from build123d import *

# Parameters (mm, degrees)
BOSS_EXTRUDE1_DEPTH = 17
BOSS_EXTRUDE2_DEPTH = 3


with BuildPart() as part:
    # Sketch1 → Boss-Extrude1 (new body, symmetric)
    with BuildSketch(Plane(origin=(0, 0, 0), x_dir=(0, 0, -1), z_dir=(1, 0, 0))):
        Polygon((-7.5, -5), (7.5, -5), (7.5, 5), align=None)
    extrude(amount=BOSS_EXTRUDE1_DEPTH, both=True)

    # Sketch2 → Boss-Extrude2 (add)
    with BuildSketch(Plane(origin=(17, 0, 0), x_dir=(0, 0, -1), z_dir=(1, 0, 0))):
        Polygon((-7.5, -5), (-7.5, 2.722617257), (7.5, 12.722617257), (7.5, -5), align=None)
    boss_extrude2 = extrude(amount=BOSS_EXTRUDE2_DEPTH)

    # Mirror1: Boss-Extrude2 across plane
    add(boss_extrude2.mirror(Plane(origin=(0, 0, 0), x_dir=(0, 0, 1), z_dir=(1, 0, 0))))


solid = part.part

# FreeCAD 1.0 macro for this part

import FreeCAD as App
import Part
import Sketcher
from FreeCAD import Vector
Q = App.Units.Quantity

doc = App.newDocument("Part")
body = doc.addObject("PartDesign::Body", "Body")

# Sketch on YZ plane
sketch1 = body.newObject("Sketcher::SketchObject", "Sketch")
sketch1.AttachmentSupport = (doc.getObject("YZ_Plane"), [""])
sketch1.MapMode = "FlatFace"
sketch1.addGeometry(Part.LineSegment(Vector(-5, 7.5, 0), Vector(-5, -7.5, 0)), False)
sketch1.addGeometry(Part.LineSegment(Vector(-5, -7.5, 0), Vector(5, -7.5, 0)), False)
sketch1.addGeometry(Part.LineSegment(Vector(5, -7.5, 0), Vector(-5, 7.5, 0)), False)
sketch1.addConstraint(Sketcher.Constraint("Coincident", 0, 2, 1, 1))
sketch1.addConstraint(Sketcher.Constraint("Coincident", 1, 2, 2, 1))
sketch1.addConstraint(Sketcher.Constraint("Coincident", 2, 2, 0, 1))
sketch1.addConstraint(Sketcher.Constraint("Vertical", 0))
sketch1.addConstraint(Sketcher.Constraint("Horizontal", 1))
sketch1.addConstraint(Sketcher.Constraint("Symmetric", 1, 2, 2, 2, -1, 1))
sketch1.addConstraint(Sketcher.Constraint("DistanceX", 1, 1, 1, 2, Q("10 mm")))
sketch1.addConstraint(Sketcher.Constraint("DistanceY", 0, 2, 0, 1, Q("15 mm")))
pad1 = body.newObject("PartDesign::Pad", "Pad")
pad1.Profile = sketch1
pad1.Length = 34
pad1.Midplane = True

# Sketch on YZ plane
sketch2 = body.newObject("Sketcher::SketchObject", "Sketch001")
sketch2.AttachmentSupport = (doc.getObject("YZ_Plane"), [""])
sketch2.MapMode = "FlatFace"
sketch2.AttachmentOffset = App.Placement(Vector(0, 0, 17), App.Rotation())
sketch2.addGeometry(Part.LineSegment(Vector(2.722617, 7.5, 0), Vector(-5, 7.5, 0)), False)
sketch2.addGeometry(Part.LineSegment(Vector(-5, 7.5, 0), Vector(-5, -7.5, 0)), False)
sketch2.addGeometry(Part.LineSegment(Vector(-5, -7.5, 0), Vector(12.722617, -7.5, 0)), False)
sketch2.addGeometry(Part.LineSegment(Vector(12.722617, -7.5, 0), Vector(2.722617, 7.5, 0)), False)
sketch2.addConstraint(Sketcher.Constraint("Coincident", 0, 2, 1, 1))
sketch2.addConstraint(Sketcher.Constraint("Coincident", 1, 2, 2, 1))
sketch2.addConstraint(Sketcher.Constraint("Coincident", 2, 2, 3, 1))
sketch2.addConstraint(Sketcher.Constraint("Coincident", 3, 2, 0, 1))
sketch2.addConstraint(Sketcher.Constraint("Horizontal", 0))
sketch2.addConstraint(Sketcher.Constraint("Vertical", 1))
sketch2.addConstraint(Sketcher.Constraint("Horizontal", 2))
sketch2.addConstraint(Sketcher.Constraint("DistanceY", 1, 2, 1, 1, Q("15 mm")))
sketch2.addConstraint(Sketcher.Constraint("DistanceX", 0, 2, -1, 1, Q("5 mm")))
sketch2.addConstraint(Sketcher.Constraint("DistanceX", 3, 2, 2, 2, Q("10 mm")))
sketch2.addConstraint(Sketcher.Constraint("DistanceY", -1, 1, 0, 2, Q("7.5 mm")))
sketch2.addConstraint(Sketcher.Constraint("DistanceX", 0, 2, 0, 1, Q("7.722617 mm")))
pad2 = body.newObject("PartDesign::Pad", "Pad001")
pad2.Profile = sketch2
pad2.Length = 3
doc.recompute()

mirrored = body.newObject("PartDesign::Mirrored", "Mirrored")
mirrored.Originals = [pad2]
mirrored.MirrorPlane = (doc.getObject("YZ_Plane"), [""])
body.Tip = mirrored

doc.recompute()
